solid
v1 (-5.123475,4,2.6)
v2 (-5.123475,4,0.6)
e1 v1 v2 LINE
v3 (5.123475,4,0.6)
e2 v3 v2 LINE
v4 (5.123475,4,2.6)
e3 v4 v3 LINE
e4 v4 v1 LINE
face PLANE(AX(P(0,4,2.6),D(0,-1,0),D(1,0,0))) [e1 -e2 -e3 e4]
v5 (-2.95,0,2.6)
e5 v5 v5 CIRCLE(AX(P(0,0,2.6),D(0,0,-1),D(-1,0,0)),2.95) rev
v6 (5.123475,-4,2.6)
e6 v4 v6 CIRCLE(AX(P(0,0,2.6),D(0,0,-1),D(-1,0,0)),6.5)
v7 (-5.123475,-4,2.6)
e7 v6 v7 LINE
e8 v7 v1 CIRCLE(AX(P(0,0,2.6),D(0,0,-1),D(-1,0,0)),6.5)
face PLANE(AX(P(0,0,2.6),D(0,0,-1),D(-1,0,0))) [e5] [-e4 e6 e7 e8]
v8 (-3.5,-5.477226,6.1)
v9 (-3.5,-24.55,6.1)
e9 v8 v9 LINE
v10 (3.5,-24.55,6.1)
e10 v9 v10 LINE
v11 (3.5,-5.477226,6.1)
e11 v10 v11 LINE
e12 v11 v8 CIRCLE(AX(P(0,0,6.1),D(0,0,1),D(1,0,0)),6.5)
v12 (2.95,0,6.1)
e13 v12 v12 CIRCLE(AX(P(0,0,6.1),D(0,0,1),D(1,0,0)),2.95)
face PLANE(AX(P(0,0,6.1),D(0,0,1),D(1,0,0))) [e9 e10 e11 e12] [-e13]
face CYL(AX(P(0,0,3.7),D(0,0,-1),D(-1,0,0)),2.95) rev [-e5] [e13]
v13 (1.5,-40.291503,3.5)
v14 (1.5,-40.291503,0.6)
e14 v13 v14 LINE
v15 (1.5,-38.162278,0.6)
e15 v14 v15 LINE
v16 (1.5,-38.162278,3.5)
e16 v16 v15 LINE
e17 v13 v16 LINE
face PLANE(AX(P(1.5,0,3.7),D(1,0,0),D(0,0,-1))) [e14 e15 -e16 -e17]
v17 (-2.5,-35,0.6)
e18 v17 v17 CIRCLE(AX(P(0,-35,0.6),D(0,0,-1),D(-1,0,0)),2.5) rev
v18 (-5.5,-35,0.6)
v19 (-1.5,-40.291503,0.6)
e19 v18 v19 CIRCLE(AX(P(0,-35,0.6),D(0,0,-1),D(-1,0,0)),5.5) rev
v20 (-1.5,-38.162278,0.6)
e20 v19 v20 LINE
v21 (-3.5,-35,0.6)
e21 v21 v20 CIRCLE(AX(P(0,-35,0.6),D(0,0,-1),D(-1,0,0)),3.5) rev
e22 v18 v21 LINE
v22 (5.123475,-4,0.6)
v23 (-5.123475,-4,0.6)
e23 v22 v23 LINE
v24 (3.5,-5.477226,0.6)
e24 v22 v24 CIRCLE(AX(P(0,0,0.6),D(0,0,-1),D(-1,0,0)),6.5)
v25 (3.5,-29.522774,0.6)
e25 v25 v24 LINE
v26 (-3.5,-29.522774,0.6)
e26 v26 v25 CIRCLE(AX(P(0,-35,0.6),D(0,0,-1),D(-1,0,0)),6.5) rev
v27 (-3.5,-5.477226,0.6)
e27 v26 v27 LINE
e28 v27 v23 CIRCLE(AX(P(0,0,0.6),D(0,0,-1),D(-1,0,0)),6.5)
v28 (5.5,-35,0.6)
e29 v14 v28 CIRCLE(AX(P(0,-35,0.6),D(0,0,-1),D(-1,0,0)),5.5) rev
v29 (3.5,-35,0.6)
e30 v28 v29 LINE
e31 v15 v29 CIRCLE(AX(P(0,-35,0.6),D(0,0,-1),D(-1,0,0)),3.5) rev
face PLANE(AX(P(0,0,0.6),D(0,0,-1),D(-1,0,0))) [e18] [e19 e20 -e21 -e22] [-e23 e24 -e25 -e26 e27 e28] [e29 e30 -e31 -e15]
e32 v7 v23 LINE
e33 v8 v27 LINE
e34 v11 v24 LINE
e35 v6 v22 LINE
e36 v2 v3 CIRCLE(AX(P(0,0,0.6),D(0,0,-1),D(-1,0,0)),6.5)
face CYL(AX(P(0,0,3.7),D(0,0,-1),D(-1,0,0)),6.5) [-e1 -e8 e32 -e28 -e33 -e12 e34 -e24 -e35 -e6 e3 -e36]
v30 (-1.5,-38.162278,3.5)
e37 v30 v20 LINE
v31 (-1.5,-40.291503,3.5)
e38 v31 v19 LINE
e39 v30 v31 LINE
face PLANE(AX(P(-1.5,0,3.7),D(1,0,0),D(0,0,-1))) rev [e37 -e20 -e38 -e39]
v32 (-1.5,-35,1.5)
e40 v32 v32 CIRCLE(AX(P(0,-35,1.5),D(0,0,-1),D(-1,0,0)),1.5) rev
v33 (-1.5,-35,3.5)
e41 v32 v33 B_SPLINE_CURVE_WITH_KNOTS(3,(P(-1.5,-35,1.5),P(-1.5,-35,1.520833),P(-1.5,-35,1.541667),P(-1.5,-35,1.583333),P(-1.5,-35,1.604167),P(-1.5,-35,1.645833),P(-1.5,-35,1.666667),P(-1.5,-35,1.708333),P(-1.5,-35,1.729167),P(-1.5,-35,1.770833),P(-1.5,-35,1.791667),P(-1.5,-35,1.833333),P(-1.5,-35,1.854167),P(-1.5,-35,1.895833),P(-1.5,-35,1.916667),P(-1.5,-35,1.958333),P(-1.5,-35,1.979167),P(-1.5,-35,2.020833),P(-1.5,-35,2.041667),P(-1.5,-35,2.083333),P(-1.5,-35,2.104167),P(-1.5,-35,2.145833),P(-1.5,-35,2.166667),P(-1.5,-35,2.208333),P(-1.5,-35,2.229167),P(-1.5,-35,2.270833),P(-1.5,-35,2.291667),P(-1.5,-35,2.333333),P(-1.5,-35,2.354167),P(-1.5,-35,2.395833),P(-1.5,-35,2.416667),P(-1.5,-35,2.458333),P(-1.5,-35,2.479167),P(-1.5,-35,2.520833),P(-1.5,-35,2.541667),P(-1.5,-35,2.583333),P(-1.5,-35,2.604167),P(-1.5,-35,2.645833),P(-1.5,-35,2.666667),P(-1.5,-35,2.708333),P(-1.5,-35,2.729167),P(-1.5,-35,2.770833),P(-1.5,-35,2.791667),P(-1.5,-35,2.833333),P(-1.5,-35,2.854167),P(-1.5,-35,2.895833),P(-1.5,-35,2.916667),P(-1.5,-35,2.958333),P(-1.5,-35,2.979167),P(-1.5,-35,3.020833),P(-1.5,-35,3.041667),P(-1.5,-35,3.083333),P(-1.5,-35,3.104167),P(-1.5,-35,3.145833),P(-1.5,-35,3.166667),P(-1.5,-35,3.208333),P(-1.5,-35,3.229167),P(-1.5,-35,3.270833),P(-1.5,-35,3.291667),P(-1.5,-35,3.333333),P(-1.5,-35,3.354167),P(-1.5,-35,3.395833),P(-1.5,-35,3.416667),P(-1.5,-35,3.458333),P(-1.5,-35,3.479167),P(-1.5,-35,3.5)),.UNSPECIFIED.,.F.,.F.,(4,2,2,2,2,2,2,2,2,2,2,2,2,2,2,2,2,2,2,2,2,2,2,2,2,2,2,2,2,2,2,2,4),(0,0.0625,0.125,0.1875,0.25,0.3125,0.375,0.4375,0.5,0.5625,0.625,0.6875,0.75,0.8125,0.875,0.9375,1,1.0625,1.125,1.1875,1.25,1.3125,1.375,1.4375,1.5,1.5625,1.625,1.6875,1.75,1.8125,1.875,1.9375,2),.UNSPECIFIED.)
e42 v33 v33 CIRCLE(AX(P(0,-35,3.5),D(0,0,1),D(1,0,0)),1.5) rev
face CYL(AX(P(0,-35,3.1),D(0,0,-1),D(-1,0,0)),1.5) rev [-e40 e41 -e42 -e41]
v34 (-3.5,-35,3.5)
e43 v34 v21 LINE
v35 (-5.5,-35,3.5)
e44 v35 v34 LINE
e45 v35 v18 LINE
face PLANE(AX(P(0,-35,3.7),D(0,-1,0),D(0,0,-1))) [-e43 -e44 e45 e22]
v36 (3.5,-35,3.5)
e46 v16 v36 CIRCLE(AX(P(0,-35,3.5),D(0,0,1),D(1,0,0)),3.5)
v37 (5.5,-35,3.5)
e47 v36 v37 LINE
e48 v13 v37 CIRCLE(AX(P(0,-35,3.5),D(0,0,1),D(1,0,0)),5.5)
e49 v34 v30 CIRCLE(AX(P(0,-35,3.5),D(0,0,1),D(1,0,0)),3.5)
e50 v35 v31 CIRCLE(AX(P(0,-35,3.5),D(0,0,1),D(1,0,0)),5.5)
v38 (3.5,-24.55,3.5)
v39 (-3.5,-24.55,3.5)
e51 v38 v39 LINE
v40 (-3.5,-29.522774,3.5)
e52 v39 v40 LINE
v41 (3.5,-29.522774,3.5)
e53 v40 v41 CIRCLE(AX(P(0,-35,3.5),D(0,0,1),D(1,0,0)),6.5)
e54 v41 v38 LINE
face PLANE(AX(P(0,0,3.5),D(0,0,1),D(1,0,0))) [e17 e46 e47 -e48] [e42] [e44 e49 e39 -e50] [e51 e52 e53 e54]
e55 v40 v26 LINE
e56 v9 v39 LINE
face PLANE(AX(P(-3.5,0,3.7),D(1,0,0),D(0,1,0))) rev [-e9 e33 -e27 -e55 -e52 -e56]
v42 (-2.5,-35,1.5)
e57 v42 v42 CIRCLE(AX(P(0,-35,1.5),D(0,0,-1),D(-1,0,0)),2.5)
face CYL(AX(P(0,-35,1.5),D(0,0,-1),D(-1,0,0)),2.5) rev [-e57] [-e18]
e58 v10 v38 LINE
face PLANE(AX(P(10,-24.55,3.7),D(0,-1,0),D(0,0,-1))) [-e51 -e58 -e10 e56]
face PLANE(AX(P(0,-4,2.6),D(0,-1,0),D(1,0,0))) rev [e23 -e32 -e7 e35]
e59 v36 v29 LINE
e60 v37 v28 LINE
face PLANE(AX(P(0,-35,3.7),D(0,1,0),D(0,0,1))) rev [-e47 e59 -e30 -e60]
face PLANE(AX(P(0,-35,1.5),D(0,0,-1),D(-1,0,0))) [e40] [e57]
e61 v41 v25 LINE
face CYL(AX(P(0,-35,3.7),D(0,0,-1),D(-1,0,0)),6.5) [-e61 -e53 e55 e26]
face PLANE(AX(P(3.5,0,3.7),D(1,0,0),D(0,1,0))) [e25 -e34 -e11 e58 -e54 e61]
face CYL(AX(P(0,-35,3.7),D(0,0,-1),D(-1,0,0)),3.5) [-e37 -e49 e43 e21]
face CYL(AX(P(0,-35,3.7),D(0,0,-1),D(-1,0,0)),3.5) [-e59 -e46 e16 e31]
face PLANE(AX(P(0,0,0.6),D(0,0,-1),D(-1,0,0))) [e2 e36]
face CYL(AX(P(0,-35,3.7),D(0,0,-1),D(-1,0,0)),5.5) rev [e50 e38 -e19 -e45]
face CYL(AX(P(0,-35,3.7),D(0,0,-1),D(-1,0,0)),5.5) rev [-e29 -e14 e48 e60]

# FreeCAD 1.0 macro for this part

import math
import FreeCAD as App
import Part
import Sketcher

doc = App.newDocument("Part")
body = doc.addObject("PartDesign::Body", "Body")

# Sketch on XY plane
sketch1 = body.newObject("Sketcher::SketchObject", "Sketch")
sketch1.AttachmentSupport = (doc.getObject("XY_Plane"), [""])
sketch1.MapMode = "FlatFace"
sketch1.addGeometry([
    Part.LineSegment(App.Vector(3.5, -29.5, 0), App.Vector(3.5, -5.5, 0)),  # 0
    Part.ArcOfCircle(Part.Circle(App.Vector(0, 0, 0), App.Vector(0, 0, 1), 6.5), math.radians(-57), math.radians(0)),  # 1
    Part.ArcOfCircle(Part.Circle(App.Vector(0, 0, 0), App.Vector(0, 0, 1), 6.5), math.radians(0), math.radians(237)),  # 2
    Part.LineSegment(App.Vector(-3.5, -5.5, 0), App.Vector(-3.5, -29.5, 0)),  # 3
    Part.ArcOfCircle(Part.Circle(App.Vector(0, -35, 0), App.Vector(0, 0, 1), 6.5), math.radians(123), math.radians(360)),  # 4
    Part.ArcOfCircle(Part.Circle(App.Vector(0, -35, 0), App.Vector(0, 0, 1), 6.5), math.radians(0), math.radians(57)),  # 5
    Part.LineSegment(App.Vector(-5.5, -35, 0), App.Vector(-3.5, -35, 0)),  # 6
    Part.ArcOfCircle(Part.Circle(App.Vector(0, -35, 0), App.Vector(0, 0, 1), 3.5), math.radians(180), math.radians(245)),  # 7
    Part.LineSegment(App.Vector(-1.5, -38.2, 0), App.Vector(-1.5, -40.3, 0)),  # 8
    Part.ArcOfCircle(Part.Circle(App.Vector(0, -35, 0), App.Vector(0, 0, 1), 5.5), math.radians(180), math.radians(254)),  # 9
    Part.ArcOfCircle(Part.Circle(App.Vector(0, -35, 0), App.Vector(0, 0, 1), 3.5), math.radians(-65), math.radians(0)),  # 10
    Part.LineSegment(App.Vector(3.5, -35, 0), App.Vector(5.5, -35, 0)),  # 11
    Part.ArcOfCircle(Part.Circle(App.Vector(0, -35, 0), App.Vector(0, 0, 1), 5.5), math.radians(-74), math.radians(0)),  # 12
    Part.LineSegment(App.Vector(1.5, -40.3, 0), App.Vector(1.5, -38.2, 0)),  # 13
    Part.Circle(App.Vector(0, -35, 0), App.Vector(0, 0, 1), 3),  # 14
    Part.ArcOfCircle(Part.Circle(App.Vector(0, 0, 0), App.Vector(0, 0, 1), 5.5), math.radians(106), math.radians(180)),  # 15
    Part.LineSegment(App.Vector(-1.5, 5.3, 0), App.Vector(-1.5, 3.2, 0)),  # 16
    Part.ArcOfCircle(Part.Circle(App.Vector(0, 0, 0), App.Vector(0, 0, 1), 3.5), math.radians(115), math.radians(180)),  # 17
    Part.LineSegment(App.Vector(-3.5, 0, 0), App.Vector(-5.5, 0, 0)),  # 18
    Part.Circle(App.Vector(0, 0, 0), App.Vector(0, 0, 1), 3),  # 19
    Part.LineSegment(App.Vector(5.5, 0, 0), App.Vector(3.5, 0, 0)),  # 20
    Part.ArcOfCircle(Part.Circle(App.Vector(0, 0, 0), App.Vector(0, 0, 1), 3.5), math.radians(0), math.radians(65)),  # 21
    Part.LineSegment(App.Vector(1.5, 3.2, 0), App.Vector(1.5, 5.3, 0)),  # 22
    Part.ArcOfCircle(Part.Circle(App.Vector(0, 0, 0), App.Vector(0, 0, 1), 5.5), math.radians(0), math.radians(74)),  # 23
], False)
sketch1.addConstraint([
    Sketcher.Constraint("Coincident", 0, 2, 1, 1),
    Sketcher.Constraint("Tangent", 1, 2, 2, 1),
    Sketcher.Constraint("Coincident", 2, 2, 3, 1),
    Sketcher.Constraint("Coincident", 3, 2, 4, 1),
    Sketcher.Constraint("Tangent", 4, 2, 5, 1),
    Sketcher.Constraint("Coincident", 5, 2, 0, 1),
    Sketcher.Constraint("Coincident", 6, 2, 7, 1),
    Sketcher.Constraint("Coincident", 7, 2, 8, 1),
    Sketcher.Constraint("Coincident", 8, 2, 9, 2),
    Sketcher.Constraint("Coincident", 9, 1, 6, 1),
    Sketcher.Constraint("Coincident", 10, 2, 11, 1),
    Sketcher.Constraint("Coincident", 11, 2, 12, 2),
    Sketcher.Constraint("Coincident", 12, 1, 13, 1),
    Sketcher.Constraint("Coincident", 13, 2, 10, 1),
    Sketcher.Constraint("Coincident", 15, 1, 16, 1),
    Sketcher.Constraint("Coincident", 16, 2, 17, 1),
    Sketcher.Constraint("Coincident", 17, 2, 18, 1),
    Sketcher.Constraint("Coincident", 18, 2, 15, 2),
    Sketcher.Constraint("Coincident", 20, 2, 21, 1),
    Sketcher.Constraint("Coincident", 21, 2, 22, 1),
    Sketcher.Constraint("Coincident", 22, 2, 23, 2),
    Sketcher.Constraint("Coincident", 23, 1, 20, 1),
    Sketcher.Constraint("Vertical", 0),
    Sketcher.Constraint("Vertical", 3),
    Sketcher.Constraint("Horizontal", 6),
    Sketcher.Constraint("Vertical", 8),
    Sketcher.Constraint("Horizontal", 11),
    Sketcher.Constraint("Vertical", 13),
    Sketcher.Constraint("Vertical", 16),
    Sketcher.Constraint("Horizontal", 18),
    Sketcher.Constraint("Horizontal", 20),
    Sketcher.Constraint("Vertical", 22),
    Sketcher.Constraint("Coincident", 1, 3, -1, 1),
    Sketcher.Constraint("Coincident", 15, 3, -1, 1),
    Sketcher.Constraint("Coincident", 17, 3, -1, 1),
    Sketcher.Constraint("Coincident", 19, 3, -1, 1),
    Sketcher.Constraint("Coincident", 21, 3, -1, 1),
    Sketcher.Constraint("Coincident", 23, 3, -1, 1),
    Sketcher.Constraint("Coincident", 7, 3, 4, 3),
    Sketcher.Constraint("Coincident", 9, 3, 4, 3),
    Sketcher.Constraint("Coincident", 10, 3, 4, 3),
    Sketcher.Constraint("Coincident", 12, 3, 4, 3),
    Sketcher.Constraint("Coincident", 14, 3, 4, 3),
    Sketcher.Constraint("Equal", 1, 2),
    Sketcher.Constraint("Equal", 2, 4),
    Sketcher.Constraint("Equal", 4, 5),
    Sketcher.Constraint("Equal", 7, 10),
    Sketcher.Constraint("Equal", 9, 12),
    Sketcher.Constraint("Equal", 12, 15),
    Sketcher.Constraint("Equal", 10, 17),
    Sketcher.Constraint("Equal", 14, 19),
    Sketcher.Constraint("Equal", 17, 21),
    Sketcher.Constraint("Equal", 15, 23),
    Sketcher.Constraint("Symmetric", 3, 2, 5, 2, -2),
    Sketcher.Constraint("PointOnObject", 1, 2, -1),
    Sketcher.Constraint("PointOnObject", 17, 2, -1),
    Sketcher.Constraint("PointOnObject", 20, 2, -1),
    Sketcher.Constraint("Horizontal", 14, 3, 4, 2),
    Sketcher.Constraint("Horizontal", 4, 2, 6, 2),
    Sketcher.Constraint("Horizontal", 9, 1, 10, 2),
    Sketcher.Constraint("Horizontal", 8, 2, 12, 1),
    Sketcher.Constraint("Horizontal", 16, 2, 21, 2),
    Sketcher.Constraint("Vertical", 3, 2, 6, 2),
    Sketcher.Constraint("Vertical", 8, 2, 15, 1),
    Sketcher.Constraint("Diameter", 14, 5.9),
    Sketcher.Constraint("Radius", 1, 6.5),
    Sketcher.Constraint("Radius", 7, 3.5),
    Sketcher.Constraint("Radius", 9, 5.5),
    Sketcher.Constraint("DistanceY", 4, 3, -1, 1, 35.0),
    Sketcher.Constraint("DistanceX", 9, 1, 7, 2, 4.0),
])
pad1 = body.newObject("PartDesign::Pad", "Pad")
pad1.Profile = sketch1
pad1.Length = 3.7

# Sketch on YZ plane
sketch2 = body.newObject("Sketcher::SketchObject", "Sketch001")
sketch2.AttachmentSupport = (doc.getObject("YZ_Plane"), [""])
sketch2.MapMode = "FlatFace"
sketch2.addGeometry([
    Part.LineSegment(App.Vector(-24.6, 3.7, 0), App.Vector(-41.5, 3.7, 0)),
    Part.LineSegment(App.Vector(-41.5, 3.7, 0), App.Vector(-41.5, 3.1, 0)),
    Part.LineSegment(App.Vector(-41.5, 3.1, 0), App.Vector(-24.6, 3.1, 0)),
    Part.LineSegment(App.Vector(-24.6, 3.1, 0), App.Vector(-24.6, 3.7, 0)),
], False)
sketch2.addConstraint([
    Sketcher.Constraint("Coincident", 0, 2, 1, 1),
    Sketcher.Constraint("Coincident", 1, 2, 2, 1),
    Sketcher.Constraint("Coincident", 2, 2, 3, 1),
    Sketcher.Constraint("Coincident", 3, 2, 0, 1),
    Sketcher.Constraint("Horizontal", 0),
    Sketcher.Constraint("Vertical", 1),
    Sketcher.Constraint("Horizontal", 2),
    Sketcher.Constraint("Vertical", 3),
    Sketcher.Constraint("DistanceY", 1, 2, 1, 1, 0.6),
    Sketcher.Constraint("DistanceX", 0, 2, 0, 1, 16.95),
    Sketcher.Constraint("DistanceX", 0, 2, -1, 1, 41.5),
    Sketcher.Constraint("DistanceY", -1, 1, 0, 2, 3.7),
])
pocket1 = body.newObject("PartDesign::Pocket", "Pocket")
pocket1.Profile = sketch2
pocket1.Type = "ThroughAll"
pocket1.Midplane = True

# Sketch on XY plane
sketch3 = body.newObject("Sketcher::SketchObject", "Sketch002")
sketch3.AttachmentSupport = (doc.getObject("XY_Plane"), [""])
sketch3.MapMode = "FlatFace"
sketch3.addGeometry([
    Part.Circle(App.Vector(0, -35, 0), App.Vector(0, 0, 1), 3),
    Part.Circle(App.Vector(0, -35, 0), App.Vector(0, 0, 1), 1.5),
], False)
sketch3.addConstraint([
    Sketcher.Constraint("Coincident", 1, 3, 0, 3),
    Sketcher.Constraint("PointOnObject", 0, 3, -2),
    Sketcher.Constraint("Diameter", 1, 3.0),
    Sketcher.Constraint("Diameter", 0, 5.9),
    Sketcher.Constraint("DistanceY", 0, 3, -1, 1, 35.0),
])
pad2 = body.newObject("PartDesign::Pad", "Pad001")
pad2.Profile = sketch3
pad2.Length = 3.1

# Sketch on XY plane
sketch4 = body.newObject("Sketcher::SketchObject", "Sketch003")
sketch4.AttachmentSupport = (doc.getObject("XY_Plane"), [""])
sketch4.MapMode = "FlatFace"
sketch4.addGeometry(Part.Circle(App.Vector(0, -35, 0), App.Vector(0, 0, 1), 2.5), False)
sketch4.addConstraint([
    Sketcher.Constraint("PointOnObject", 0, 3, -2),
    Sketcher.Constraint("Diameter", 0, 5.0),
    Sketcher.Constraint("DistanceY", 0, 3, -1, 1, 35.0),
])
pocket2 = body.newObject("PartDesign::Pocket", "Pocket001")
pocket2.Profile = sketch4
pocket2.Length = 1.5
pocket2.Reversed = True

# Sketch on XY plane
sketch5 = body.newObject("Sketcher::SketchObject", "Sketch004")
sketch5.AttachmentSupport = (doc.getObject("XY_Plane"), [""])
sketch5.MapMode = "FlatFace"
sketch5.AttachmentOffset = App.Placement(App.Vector(0, 0, 3.1), App.Rotation())
sketch5.addGeometry([
    Part.LineSegment(App.Vector(3.5, -24.6, 0), App.Vector(-3.5, -24.6, 0)),  # 0
    Part.LineSegment(App.Vector(-3.5, -24.6, 0), App.Vector(-3.5, -29.5, 0)),  # 1
    Part.ArcOfCircle(Part.Circle(App.Vector(0, -35, 0), App.Vector(0, 0, 1), 6.5), math.radians(123), math.radians(417)),  # 2
    Part.LineSegment(App.Vector(3.5, -29.5, 0), App.Vector(3.5, -24.6, 0)),  # 3
    Part.ArcOfCircle(Part.Circle(App.Vector(0, -35, 0), App.Vector(0, 0, 1), 5.5), math.radians(180), math.radians(254)),  # 4
    Part.LineSegment(App.Vector(-5.5, -35, 0), App.Vector(-3.5, -35, 0)),  # 5
    Part.ArcOfCircle(Part.Circle(App.Vector(0, -35, 0), App.Vector(0, 0, 1), 3.5), math.radians(180), math.radians(245)),  # 6
    Part.LineSegment(App.Vector(-1.5, -38.2, 0), App.Vector(-1.5, -40.3, 0)),  # 7
    Part.LineSegment(App.Vector(1.5, -40.3, 0), App.Vector(1.5, -38.2, 0)),  # 8
    Part.ArcOfCircle(Part.Circle(App.Vector(0, -35, 0), App.Vector(0, 0, 1), 3.5), math.radians(-65), math.radians(0)),  # 9
    Part.LineSegment(App.Vector(3.5, -35, 0), App.Vector(5.5, -35, 0)),  # 10
    Part.ArcOfCircle(Part.Circle(App.Vector(0, -35, 0), App.Vector(0, 0, 1), 5.5), math.radians(-74), math.radians(0)),  # 11
    Part.Circle(App.Vector(0, -35, 0), App.Vector(0, 0, 1), 1.5),  # 12
], False)
sketch5.addConstraint([
    Sketcher.Constraint("Coincident", 0, 2, 1, 1),
    Sketcher.Constraint("Coincident", 1, 2, 2, 1),
    Sketcher.Constraint("Coincident", 2, 2, 3, 1),
    Sketcher.Constraint("Coincident", 3, 2, 0, 1),
    Sketcher.Constraint("Coincident", 4, 1, 5, 1),
    Sketcher.Constraint("Coincident", 5, 2, 6, 1),
    Sketcher.Constraint("Coincident", 6, 2, 7, 1),
    Sketcher.Constraint("Coincident", 7, 2, 4, 2),
    Sketcher.Constraint("Coincident", 8, 2, 9, 1),
    Sketcher.Constraint("Coincident", 9, 2, 10, 1),
    Sketcher.Constraint("Coincident", 10, 2, 11, 2),
    Sketcher.Constraint("Coincident", 11, 1, 8, 1),
    Sketcher.Constraint("Horizontal", 0),
    Sketcher.Constraint("Vertical", 1),
    Sketcher.Constraint("Vertical", 3),
    Sketcher.Constraint("Horizontal", 5),
    Sketcher.Constraint("Vertical", 7),
    Sketcher.Constraint("Vertical", 8),
    Sketcher.Constraint("Horizontal", 10),
    Sketcher.Constraint("Coincident", 4, 3, 2, 3),
    Sketcher.Constraint("Coincident", 6, 3, 2, 3),
    Sketcher.Constraint("Coincident", 9, 3, 2, 3),
    Sketcher.Constraint("Coincident", 11, 3, 2, 3),
    Sketcher.Constraint("Coincident", 12, 3, 2, 3),
    Sketcher.Constraint("Equal", 6, 9),
    Sketcher.Constraint("Equal", 4, 11),
    Sketcher.Constraint("Symmetric", 1, 2, 2, 2, -2),
    Sketcher.Constraint("Horizontal", 12, 3, 4, 1),
    Sketcher.Constraint("Horizontal", 6, 2, 8, 2),
    Sketcher.Constraint("Horizontal", 5, 2, 9, 2),
    Sketcher.Constraint("Vertical", 1, 2, 5, 2),
    Sketcher.Constraint("Diameter", 12, 3.0),
    Sketcher.Constraint("Radius", 2, 6.5),
    Sketcher.Constraint("Radius", 4, 5.5),
    Sketcher.Constraint("Radius", 6, 3.5),
    Sketcher.Constraint("DistanceY", 2, 3, -1, 1, 35.0),
    Sketcher.Constraint("DistanceX", 6, 2, 8, 2, 3.0),
    Sketcher.Constraint("DistanceY", 0, 2, -1, 1, 24.55),
])
pad3 = body.newObject("PartDesign::Pad", "Pad002")
pad3.Profile = sketch5
pad3.Length = 0.4

# Sketch on XY plane
sketch6 = body.newObject("Sketcher::SketchObject", "Sketch005")
sketch6.AttachmentSupport = (doc.getObject("XY_Plane"), [""])
sketch6.MapMode = "FlatFace"
sketch6.AttachmentOffset = App.Placement(App.Vector(0, 0, 3.7), App.Rotation())
sketch6.addGeometry([
    Part.LineSegment(App.Vector(-3.5, -5.5, 0), App.Vector(-3.5, -24.6, 0)),  # 0
    Part.LineSegment(App.Vector(-3.5, -24.6, 0), App.Vector(3.5, -24.6, 0)),  # 1
    Part.LineSegment(App.Vector(3.5, -24.6, 0), App.Vector(3.5, -5.5, 0)),  # 2
    Part.ArcOfCircle(Part.Circle(App.Vector(0, 0, 0), App.Vector(0, 0, 1), 6.5), math.radians(-57), math.radians(237)),  # 3
    Part.Circle(App.Vector(0, 0, 0), App.Vector(0, 0, 1), 3),  # 4
    Part.ArcOfCircle(Part.Circle(App.Vector(0, 0, 0), App.Vector(0, 0, 1), 5.5), math.radians(106), math.radians(180)),  # 5
    Part.LineSegment(App.Vector(-1.5, 5.3, 0), App.Vector(-1.5, 3.2, 0)),  # 6
    Part.ArcOfCircle(Part.Circle(App.Vector(0, 0, 0), App.Vector(0, 0, 1), 3.5), math.radians(115), math.radians(180)),  # 7
    Part.LineSegment(App.Vector(-3.5, 0, 0), App.Vector(-5.5, 0, 0)),  # 8
    Part.LineSegment(App.Vector(1.5, 3.2, 0), App.Vector(1.5, 5.3, 0)),  # 9
    Part.ArcOfCircle(Part.Circle(App.Vector(0, 0, 0), App.Vector(0, 0, 1), 5.5), math.radians(0), math.radians(74)),  # 10
    Part.LineSegment(App.Vector(5.5, 0, 0), App.Vector(3.5, 0, 0)),  # 11
    Part.ArcOfCircle(Part.Circle(App.Vector(0, 0, 0), App.Vector(0, 0, 1), 3.5), math.radians(0), math.radians(65)),  # 12
], False)
sketch6.addConstraint([
    Sketcher.Constraint("Coincident", 0, 2, 1, 1),
    Sketcher.Constraint("Coincident", 1, 2, 2, 1),
    Sketcher.Constraint("Coincident", 2, 2, 3, 1),
    Sketcher.Constraint("Coincident", 3, 2, 0, 1),
    Sketcher.Constraint("Coincident", 5, 1, 6, 1),
    Sketcher.Constraint("Coincident", 6, 2, 7, 1),
    Sketcher.Constraint("Coincident", 7, 2, 8, 1),
    Sketcher.Constraint("Coincident", 8, 2, 5, 2),
    Sketcher.Constraint("Coincident", 9, 2, 10, 2),
    Sketcher.Constraint("Coincident", 10, 1, 11, 1),
    Sketcher.Constraint("Coincident", 11, 2, 12, 1),
    Sketcher.Constraint("Coincident", 12, 2, 9, 1),
    Sketcher.Constraint("Vertical", 0),
    Sketcher.Constraint("Horizontal", 1),
    Sketcher.Constraint("Vertical", 2),
    Sketcher.Constraint("Vertical", 6),
    Sketcher.Constraint("Horizontal", 8),
    Sketcher.Constraint("Vertical", 9),
    Sketcher.Constraint("Horizontal", 11),
    Sketcher.Constraint("Coincident", 3, 3, -1, 1),
    Sketcher.Constraint("Coincident", 4, 3, -1, 1),
    Sketcher.Constraint("Coincident", 5, 3, -1, 1),
    Sketcher.Constraint("Coincident", 7, 3, -1, 1),
    Sketcher.Constraint("Coincident", 10, 3, -1, 1),
    Sketcher.Constraint("Coincident", 12, 3, -1, 1),
    Sketcher.Constraint("Equal", 5, 10),
    Sketcher.Constraint("Equal", 7, 12),
    Sketcher.Constraint("PointOnObject", 7, 2, -1),
    Sketcher.Constraint("PointOnObject", 10, 1, -1),
    Sketcher.Constraint("Horizontal", 2, 2, 3, 2),
    Sketcher.Constraint("Horizontal", 5, 1, 9, 2),
    Sketcher.Constraint("Vertical", 3, 2, 7, 2),
    Sketcher.Constraint("Diameter", 4, 5.9),
    Sketcher.Constraint("Radius", 3, 6.5),
    Sketcher.Constraint("Radius", 5, 5.5),
    Sketcher.Constraint("Radius", 7, 3.5),
    Sketcher.Constraint("DistanceX", 8, 2, 6, 2, 4.0),
    Sketcher.Constraint("DistanceY", 0, 2, -1, 1, 24.55),
])
pad4 = body.newObject("PartDesign::Pad", "Pad003")
pad4.Profile = sketch6
pad4.Length = 2.4

# Sketch on XY plane
sketch7 = body.newObject("Sketcher::SketchObject", "Sketch006")
sketch7.AttachmentSupport = (doc.getObject("XY_Plane"), [""])
sketch7.MapMode = "FlatFace"
sketch7.addGeometry([
    Part.LineSegment(App.Vector(-10, 8, 0), App.Vector(-10, -43, 0)),
    Part.LineSegment(App.Vector(-10, -43, 0), App.Vector(12, -43, 0)),
    Part.LineSegment(App.Vector(12, -43, 0), App.Vector(12, 8, 0)),
    Part.LineSegment(App.Vector(12, 8, 0), App.Vector(-10, 8, 0)),
], False)
sketch7.addConstraint([
    Sketcher.Constraint("Coincident", 0, 2, 1, 1),
    Sketcher.Constraint("Coincident", 1, 2, 2, 1),
    Sketcher.Constraint("Coincident", 2, 2, 3, 1),
    Sketcher.Constraint("Coincident", 3, 2, 0, 1),
    Sketcher.Constraint("Vertical", 0),
    Sketcher.Constraint("Horizontal", 1),
    Sketcher.Constraint("Vertical", 2),
    Sketcher.Constraint("Horizontal", 3),
    Sketcher.Constraint("DistanceY", 0, 2, 0, 1, 50.546801),
    Sketcher.Constraint("DistanceX", 1, 1, 1, 2, 22.104565),
    Sketcher.Constraint("DistanceX", -1, 1, 1, 2, 12.00504),
    Sketcher.Constraint("DistanceY", 0, 2, -1, 1, 42.727324),
])
pocket3 = body.newObject("PartDesign::Pocket", "Pocket002")
pocket3.Profile = sketch7
pocket3.Length = 0.6
pocket3.Reversed = True

# Sketch on XY plane
sketch8 = body.newObject("Sketcher::SketchObject", "Sketch007")
sketch8.AttachmentSupport = (doc.getObject("XY_Plane"), [""])
sketch8.MapMode = "FlatFace"
sketch8.AttachmentOffset = App.Placement(App.Vector(0, 0, 6.1), App.Rotation())
sketch8.addGeometry([
    Part.Circle(App.Vector(0, 0, 0), App.Vector(0, 0, 1), 5.5),
    Part.Circle(App.Vector(0, 0, 0), App.Vector(0, 0, 1), 3.5),
], False)
sketch8.addConstraint([
    Sketcher.Constraint("Coincident", 0, 3, -1, 1),
    Sketcher.Constraint("Coincident", 1, 3, -1, 1),
    Sketcher.Constraint("Diameter", 0, 11.0),
    Sketcher.Constraint("Diameter", 1, 7.0),
])
pad5 = body.newObject("PartDesign::Pad", "Pad004")
pad5.Profile = sketch8
pad5.Length = 5.5
pad5.Reversed = True

# Sketch on XY plane
sketch9 = body.newObject("Sketcher::SketchObject", "Sketch008")
sketch9.AttachmentSupport = (doc.getObject("XY_Plane"), [""])
sketch9.MapMode = "FlatFace"
sketch9.AttachmentOffset = App.Placement(App.Vector(0, 0, 0.6), App.Rotation())
sketch9.addGeometry([
    Part.ArcOfCircle(Part.Circle(App.Vector(0, 0, 0), App.Vector(0, 0, 1), 6.5), math.radians(-38), math.radians(38)),  # 0
    Part.LineSegment(App.Vector(5.1, -4, 0), App.Vector(-5.1, -4, 0)),  # 1
    Part.ArcOfCircle(Part.Circle(App.Vector(0, 0, 0), App.Vector(0, 0, 1), 6.5), math.radians(142), math.radians(218)),  # 2
    Part.LineSegment(App.Vector(-5.1, 4, 0), App.Vector(5.1, 4, 0)),  # 3
    Part.ArcOfCircle(Part.Circle(App.Vector(0, 0, 0), App.Vector(0, 0, 1), 3), math.radians(-90), math.radians(90)),  # 4
    Part.ArcOfCircle(Part.Circle(App.Vector(0, 0, 0), App.Vector(0, 0, 1), 2.9), math.radians(90), math.radians(180)),  # 5
    Part.ArcOfCircle(Part.Circle(App.Vector(0, 0, 0), App.Vector(0, 0, 1), 2.9), math.radians(180), math.radians(270)),  # 6
], False)
sketch9.addConstraint([
    Sketcher.Constraint("Coincident", 0, 1, 1, 1),
    Sketcher.Constraint("Coincident", 1, 2, 2, 2),
    Sketcher.Constraint("Coincident", 2, 1, 3, 1),
    Sketcher.Constraint("Coincident", 3, 2, 0, 2),
    Sketcher.Constraint("Tangent", 4, 2, 5, 1),
    Sketcher.Constraint("Tangent", 5, 2, 6, 1),
    Sketcher.Constraint("Tangent", 6, 2, 4, 1),
    Sketcher.Constraint("Horizontal", 1),
    Sketcher.Constraint("Horizontal", 3),
    Sketcher.Constraint("Coincident", 0, 3, -1, 1),
    Sketcher.Constraint("Coincident", 2, 3, -1, 1),
    Sketcher.Constraint("Coincident", 4, 3, -1, 1),
    Sketcher.Constraint("Equal", 0, 2),
    Sketcher.Constraint("PointOnObject", 4, 2, -2),
    Sketcher.Constraint("PointOnObject", 5, 2, -1),
    Sketcher.Constraint("PointOnObject", 6, 2, -2),
    Sketcher.Constraint("Vertical", 1, 2, 2, 1),
    Sketcher.Constraint("Radius", 0, 6.5),
    Sketcher.Constraint("Radius", 4, 2.95),
    Sketcher.Constraint("DistanceY", 0, 1, -1, 1, 4.0),
])
pocket4 = body.newObject("PartDesign::Pocket", "Pocket003")
pocket4.Profile = sketch9
pocket4.Length = 2
pocket4.Reversed = True

doc.recompute()
